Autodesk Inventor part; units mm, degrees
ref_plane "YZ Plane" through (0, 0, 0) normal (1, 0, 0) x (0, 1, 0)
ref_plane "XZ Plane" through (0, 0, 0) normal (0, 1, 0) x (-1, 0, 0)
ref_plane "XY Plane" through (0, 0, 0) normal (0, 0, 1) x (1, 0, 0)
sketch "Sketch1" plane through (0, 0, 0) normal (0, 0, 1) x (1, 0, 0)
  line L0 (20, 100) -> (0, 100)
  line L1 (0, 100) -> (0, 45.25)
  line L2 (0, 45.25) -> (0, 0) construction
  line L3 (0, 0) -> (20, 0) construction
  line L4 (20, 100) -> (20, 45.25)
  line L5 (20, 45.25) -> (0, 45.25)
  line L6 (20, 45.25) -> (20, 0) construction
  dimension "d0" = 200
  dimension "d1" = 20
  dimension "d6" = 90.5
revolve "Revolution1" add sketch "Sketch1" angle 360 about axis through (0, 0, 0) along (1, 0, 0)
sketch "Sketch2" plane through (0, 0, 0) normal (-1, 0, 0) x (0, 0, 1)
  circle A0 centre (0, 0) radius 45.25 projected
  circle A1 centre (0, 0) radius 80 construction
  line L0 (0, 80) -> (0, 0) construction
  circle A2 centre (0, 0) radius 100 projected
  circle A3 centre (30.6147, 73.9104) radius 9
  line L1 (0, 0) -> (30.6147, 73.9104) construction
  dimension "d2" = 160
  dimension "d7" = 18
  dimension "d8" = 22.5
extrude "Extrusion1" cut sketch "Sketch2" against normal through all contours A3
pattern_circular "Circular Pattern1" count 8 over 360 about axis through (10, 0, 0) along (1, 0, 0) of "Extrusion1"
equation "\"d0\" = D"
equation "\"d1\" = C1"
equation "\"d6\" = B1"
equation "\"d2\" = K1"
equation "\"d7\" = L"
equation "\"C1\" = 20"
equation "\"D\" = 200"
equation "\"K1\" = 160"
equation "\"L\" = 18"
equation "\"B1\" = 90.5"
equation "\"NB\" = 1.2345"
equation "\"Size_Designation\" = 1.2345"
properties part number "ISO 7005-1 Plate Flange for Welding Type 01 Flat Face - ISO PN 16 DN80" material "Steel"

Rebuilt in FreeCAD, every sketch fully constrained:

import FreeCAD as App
import Part
import Sketcher


def add_polygon(sketch, points):
    """Adds a closed chain of lines whose ends are joined by coincident constraints."""
    first, n = sketch.GeometryCount, len(points)
    for a, b in zip(points, points[1:] + points[:1]):
        sketch.addGeometry(Part.LineSegment(App.Vector(*a, 0), App.Vector(*b, 0)), False)
    for i in range(n):
        sketch.addConstraint(Sketcher.Constraint("Coincident", first + i, 2, first + (i + 1) % n, 1))

doc = App.newDocument("Part")
body = doc.addObject("PartDesign::Body", "Body")

sketch1 = body.newObject("Sketcher::SketchObject", "Sketch")
sketch1.AttachmentSupport = (doc.getObject("XY_Plane"), [""])
sketch1.MapMode = "FlatFace"
add_polygon(sketch1, [(20, 45.25), (20, 100), (0, 100), (0, 45.25)])
sketch1.addConstraint(Sketcher.Constraint("Vertical", 0))
sketch1.addConstraint(Sketcher.Constraint("Horizontal", 1))
sketch1.addConstraint(Sketcher.Constraint("Vertical", 2))
sketch1.addConstraint(Sketcher.Constraint("Horizontal", 3))
sketch1.addConstraint(Sketcher.Constraint("PointOnObject", 1, 2, -2))
sketch1.addConstraint(Sketcher.Constraint("DistanceX", 1, 2, 1, 1, 20.0))
sketch1.addConstraint(Sketcher.Constraint("DistanceY", -1, 1, 0, 2, 100.0))
sketch1.addConstraint(Sketcher.Constraint("DistanceY", 0, 1, 0, 2, 54.75))
revolution = body.newObject("PartDesign::Revolution", "Revolution")
revolution.Profile = sketch1
revolution.ReferenceAxis = (sketch1, ["H_Axis"])
revolution.Angle = 360

sketch2 = body.newObject("Sketcher::SketchObject", "Sketch001")
sketch2.AttachmentSupport = (doc.getObject("YZ_Plane"), [""])
sketch2.MapMode = "FlatFace"
sketch2.addGeometry(Part.Circle(App.Vector(73.9104, 30.6147, 0), App.Vector(0, 0, 1), 9), False)
sketch2.addConstraint(Sketcher.Constraint("Diameter", 0, 18.0))
sketch2.addConstraint(Sketcher.Constraint("DistanceX", -1, 1, 0, 3, 73.9104))
sketch2.addConstraint(Sketcher.Constraint("DistanceY", -1, 1, 0, 3, 30.6147))
pocket1 = body.newObject("PartDesign::Pocket", "Pocket")
pocket1.Profile = sketch2
pocket1.Type = "ThroughAll"
pocket1.Reversed = True
doc.recompute()

polarpattern = body.newObject("PartDesign::PolarPattern", "PolarPattern")
polarpattern.Originals = [pocket1]
polarpattern.Axis = (doc.getObject("X_Axis"), [""])
polarpattern.Angle = 360
polarpattern.Occurrences = 8
body.Tip = polarpattern

doc.recompute()
